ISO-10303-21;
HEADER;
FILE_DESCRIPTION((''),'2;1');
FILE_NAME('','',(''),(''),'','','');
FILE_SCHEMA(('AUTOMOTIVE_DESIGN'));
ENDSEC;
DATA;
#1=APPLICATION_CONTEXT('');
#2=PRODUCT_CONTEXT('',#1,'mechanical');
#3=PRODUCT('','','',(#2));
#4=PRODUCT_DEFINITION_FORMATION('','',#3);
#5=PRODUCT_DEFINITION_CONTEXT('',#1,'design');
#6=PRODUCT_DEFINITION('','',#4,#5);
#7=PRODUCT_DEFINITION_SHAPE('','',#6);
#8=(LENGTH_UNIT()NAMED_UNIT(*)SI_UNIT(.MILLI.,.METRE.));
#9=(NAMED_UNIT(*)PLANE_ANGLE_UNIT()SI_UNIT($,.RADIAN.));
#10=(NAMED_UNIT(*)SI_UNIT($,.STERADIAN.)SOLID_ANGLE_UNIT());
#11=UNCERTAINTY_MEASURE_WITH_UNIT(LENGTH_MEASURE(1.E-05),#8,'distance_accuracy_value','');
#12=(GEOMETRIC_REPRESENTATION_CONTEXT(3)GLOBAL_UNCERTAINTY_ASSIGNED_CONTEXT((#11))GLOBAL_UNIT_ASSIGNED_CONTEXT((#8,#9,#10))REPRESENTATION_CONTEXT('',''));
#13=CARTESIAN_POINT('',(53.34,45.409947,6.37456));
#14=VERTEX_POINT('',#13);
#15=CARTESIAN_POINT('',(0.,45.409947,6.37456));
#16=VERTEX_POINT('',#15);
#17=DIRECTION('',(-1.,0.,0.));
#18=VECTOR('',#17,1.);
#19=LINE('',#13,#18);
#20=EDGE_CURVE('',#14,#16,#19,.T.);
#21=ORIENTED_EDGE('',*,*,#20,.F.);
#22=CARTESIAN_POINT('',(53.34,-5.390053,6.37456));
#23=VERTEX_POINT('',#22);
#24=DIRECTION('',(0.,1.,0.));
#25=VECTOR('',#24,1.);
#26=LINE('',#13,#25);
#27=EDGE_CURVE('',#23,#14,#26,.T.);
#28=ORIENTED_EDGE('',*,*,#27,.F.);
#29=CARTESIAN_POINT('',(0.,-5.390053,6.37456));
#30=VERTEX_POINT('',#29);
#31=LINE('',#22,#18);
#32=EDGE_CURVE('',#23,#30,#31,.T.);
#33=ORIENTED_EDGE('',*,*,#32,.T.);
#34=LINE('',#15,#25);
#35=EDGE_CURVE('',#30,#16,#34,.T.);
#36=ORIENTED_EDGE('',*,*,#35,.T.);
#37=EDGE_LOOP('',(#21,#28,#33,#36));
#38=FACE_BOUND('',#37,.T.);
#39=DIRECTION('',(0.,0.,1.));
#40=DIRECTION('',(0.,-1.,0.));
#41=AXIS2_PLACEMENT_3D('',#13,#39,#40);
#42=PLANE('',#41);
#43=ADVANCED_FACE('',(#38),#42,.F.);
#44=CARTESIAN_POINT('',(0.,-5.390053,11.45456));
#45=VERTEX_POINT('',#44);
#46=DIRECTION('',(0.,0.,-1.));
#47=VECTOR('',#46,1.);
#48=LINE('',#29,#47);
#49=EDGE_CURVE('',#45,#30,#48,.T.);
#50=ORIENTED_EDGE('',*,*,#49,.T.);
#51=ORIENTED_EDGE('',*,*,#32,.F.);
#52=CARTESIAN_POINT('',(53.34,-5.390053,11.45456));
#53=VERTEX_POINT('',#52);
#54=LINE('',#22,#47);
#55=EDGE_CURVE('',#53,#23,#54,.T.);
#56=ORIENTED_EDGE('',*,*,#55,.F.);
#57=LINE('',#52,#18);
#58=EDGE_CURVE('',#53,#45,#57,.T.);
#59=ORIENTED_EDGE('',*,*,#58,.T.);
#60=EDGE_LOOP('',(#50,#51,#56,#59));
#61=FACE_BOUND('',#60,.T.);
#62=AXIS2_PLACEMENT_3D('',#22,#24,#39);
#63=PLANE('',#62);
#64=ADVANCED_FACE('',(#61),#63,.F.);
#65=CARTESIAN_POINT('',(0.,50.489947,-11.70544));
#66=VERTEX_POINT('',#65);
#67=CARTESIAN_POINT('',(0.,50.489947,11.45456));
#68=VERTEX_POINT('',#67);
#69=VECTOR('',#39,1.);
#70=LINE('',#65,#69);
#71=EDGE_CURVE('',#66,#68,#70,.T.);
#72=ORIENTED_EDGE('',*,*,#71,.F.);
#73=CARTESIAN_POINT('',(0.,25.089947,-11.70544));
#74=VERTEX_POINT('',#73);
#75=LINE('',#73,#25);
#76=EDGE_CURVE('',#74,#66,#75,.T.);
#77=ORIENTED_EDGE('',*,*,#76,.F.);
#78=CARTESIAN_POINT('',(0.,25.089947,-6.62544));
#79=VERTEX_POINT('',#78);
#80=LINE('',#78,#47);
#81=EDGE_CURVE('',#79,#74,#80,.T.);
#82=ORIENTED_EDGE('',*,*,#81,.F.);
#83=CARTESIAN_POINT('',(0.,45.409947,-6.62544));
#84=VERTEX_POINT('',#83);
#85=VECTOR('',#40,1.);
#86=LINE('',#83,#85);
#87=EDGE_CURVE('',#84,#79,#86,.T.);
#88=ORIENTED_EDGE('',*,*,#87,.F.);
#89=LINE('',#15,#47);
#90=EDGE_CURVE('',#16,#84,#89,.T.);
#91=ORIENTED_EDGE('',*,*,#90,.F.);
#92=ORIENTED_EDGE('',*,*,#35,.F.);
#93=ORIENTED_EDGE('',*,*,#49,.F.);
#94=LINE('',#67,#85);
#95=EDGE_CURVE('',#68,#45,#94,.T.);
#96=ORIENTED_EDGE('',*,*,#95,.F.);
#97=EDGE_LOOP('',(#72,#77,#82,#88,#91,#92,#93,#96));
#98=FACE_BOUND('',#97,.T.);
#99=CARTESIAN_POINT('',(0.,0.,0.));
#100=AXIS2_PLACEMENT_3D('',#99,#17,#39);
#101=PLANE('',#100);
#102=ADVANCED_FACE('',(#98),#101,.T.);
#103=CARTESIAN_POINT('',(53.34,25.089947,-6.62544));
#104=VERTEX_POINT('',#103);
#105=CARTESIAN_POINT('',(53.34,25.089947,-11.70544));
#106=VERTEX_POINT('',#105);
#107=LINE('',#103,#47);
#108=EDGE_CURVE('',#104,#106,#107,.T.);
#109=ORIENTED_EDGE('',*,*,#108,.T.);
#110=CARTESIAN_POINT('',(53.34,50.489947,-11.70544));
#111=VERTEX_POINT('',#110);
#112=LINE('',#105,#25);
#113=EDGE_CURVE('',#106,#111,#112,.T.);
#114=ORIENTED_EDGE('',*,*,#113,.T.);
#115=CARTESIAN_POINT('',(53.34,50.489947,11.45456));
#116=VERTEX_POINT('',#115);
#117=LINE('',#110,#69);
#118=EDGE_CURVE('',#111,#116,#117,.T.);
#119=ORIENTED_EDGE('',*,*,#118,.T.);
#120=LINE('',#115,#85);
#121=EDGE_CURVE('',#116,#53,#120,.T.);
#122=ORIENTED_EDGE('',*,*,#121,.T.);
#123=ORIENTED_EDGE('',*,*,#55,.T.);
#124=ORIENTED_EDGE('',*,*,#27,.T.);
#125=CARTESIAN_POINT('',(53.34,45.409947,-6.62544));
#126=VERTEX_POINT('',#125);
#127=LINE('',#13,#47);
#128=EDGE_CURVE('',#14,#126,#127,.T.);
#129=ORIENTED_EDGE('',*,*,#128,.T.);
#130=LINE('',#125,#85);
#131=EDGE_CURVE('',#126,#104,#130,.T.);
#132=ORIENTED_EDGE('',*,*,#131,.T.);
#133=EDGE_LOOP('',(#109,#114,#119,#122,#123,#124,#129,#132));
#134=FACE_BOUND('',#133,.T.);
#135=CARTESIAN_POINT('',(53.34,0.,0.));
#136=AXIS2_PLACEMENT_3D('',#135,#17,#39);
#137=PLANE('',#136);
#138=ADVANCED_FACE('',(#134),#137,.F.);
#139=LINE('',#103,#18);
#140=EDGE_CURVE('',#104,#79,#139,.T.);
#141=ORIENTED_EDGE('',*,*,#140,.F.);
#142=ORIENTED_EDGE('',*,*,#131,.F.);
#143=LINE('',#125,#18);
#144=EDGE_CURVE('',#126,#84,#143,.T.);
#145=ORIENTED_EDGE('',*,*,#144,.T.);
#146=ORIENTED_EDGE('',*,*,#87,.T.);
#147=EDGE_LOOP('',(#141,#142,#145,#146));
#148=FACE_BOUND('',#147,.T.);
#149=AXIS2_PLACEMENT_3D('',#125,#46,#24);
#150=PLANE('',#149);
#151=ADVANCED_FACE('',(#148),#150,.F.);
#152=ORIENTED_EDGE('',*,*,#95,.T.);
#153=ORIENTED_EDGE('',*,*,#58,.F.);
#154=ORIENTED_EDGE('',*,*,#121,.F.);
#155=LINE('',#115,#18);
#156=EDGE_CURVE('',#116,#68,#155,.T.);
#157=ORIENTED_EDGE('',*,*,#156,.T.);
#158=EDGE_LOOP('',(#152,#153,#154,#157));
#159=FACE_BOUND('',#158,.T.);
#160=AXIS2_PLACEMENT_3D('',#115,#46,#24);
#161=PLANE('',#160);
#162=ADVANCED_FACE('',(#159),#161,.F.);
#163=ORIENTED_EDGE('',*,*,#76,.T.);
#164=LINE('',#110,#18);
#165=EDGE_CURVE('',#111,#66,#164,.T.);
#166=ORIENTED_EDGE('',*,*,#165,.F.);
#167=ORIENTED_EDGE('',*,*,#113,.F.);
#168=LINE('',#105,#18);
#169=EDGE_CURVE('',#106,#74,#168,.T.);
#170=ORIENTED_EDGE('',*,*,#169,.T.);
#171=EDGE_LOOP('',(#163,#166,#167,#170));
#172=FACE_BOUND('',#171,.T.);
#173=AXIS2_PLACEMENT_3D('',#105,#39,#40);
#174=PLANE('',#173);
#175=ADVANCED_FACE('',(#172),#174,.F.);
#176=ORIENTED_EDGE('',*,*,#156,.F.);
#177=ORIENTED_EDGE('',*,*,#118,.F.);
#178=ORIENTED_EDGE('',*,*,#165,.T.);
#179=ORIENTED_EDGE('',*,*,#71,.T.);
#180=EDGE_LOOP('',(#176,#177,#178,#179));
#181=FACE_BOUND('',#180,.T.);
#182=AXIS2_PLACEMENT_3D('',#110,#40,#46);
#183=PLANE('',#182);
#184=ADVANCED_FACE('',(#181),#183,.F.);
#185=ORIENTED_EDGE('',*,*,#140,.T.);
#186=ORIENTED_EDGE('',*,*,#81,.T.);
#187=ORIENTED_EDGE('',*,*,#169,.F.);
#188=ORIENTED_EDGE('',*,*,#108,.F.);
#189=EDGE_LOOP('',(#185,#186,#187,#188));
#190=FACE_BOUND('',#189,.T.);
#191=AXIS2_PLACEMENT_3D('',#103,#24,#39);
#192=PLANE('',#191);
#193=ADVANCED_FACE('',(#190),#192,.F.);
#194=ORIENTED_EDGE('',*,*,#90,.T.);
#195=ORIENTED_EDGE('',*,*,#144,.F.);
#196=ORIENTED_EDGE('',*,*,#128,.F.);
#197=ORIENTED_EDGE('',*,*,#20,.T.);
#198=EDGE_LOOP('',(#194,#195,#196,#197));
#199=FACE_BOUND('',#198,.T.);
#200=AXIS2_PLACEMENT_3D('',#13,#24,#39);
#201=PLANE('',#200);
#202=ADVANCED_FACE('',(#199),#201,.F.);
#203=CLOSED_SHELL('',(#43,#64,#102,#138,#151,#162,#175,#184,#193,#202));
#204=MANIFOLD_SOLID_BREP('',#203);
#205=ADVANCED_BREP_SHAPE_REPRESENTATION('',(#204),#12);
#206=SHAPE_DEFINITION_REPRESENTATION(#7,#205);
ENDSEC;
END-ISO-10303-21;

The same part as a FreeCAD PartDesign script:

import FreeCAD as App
import Part
import Sketcher
from FreeCAD import Vector
Q = App.Units.Quantity


def add_polygon(sketch, points):
    """Adds a closed chain of lines whose ends are joined by coincident constraints."""
    first, n = sketch.GeometryCount, len(points)
    for a, b in zip(points, points[1:] + points[:1]):
        sketch.addGeometry(Part.LineSegment(App.Vector(*a, 0), App.Vector(*b, 0)), False)
    for i in range(n):
        sketch.addConstraint(Sketcher.Constraint("Coincident", first + i, 2, first + (i + 1) % n, 1))

doc = App.newDocument("Part")
body = doc.addObject("PartDesign::Body", "Body")

sketch1 = body.newObject("Sketcher::SketchObject", "Sketch")
sketch1.AttachmentSupport = (doc.getObject("YZ_Plane"), [""])
sketch1.MapMode = "FlatFace"
add_polygon(sketch1, [(45, -7), (25, -7), (25, -12), (50, -12), (50, 11), (-5, 11), (-5, 6), (45, 6)])
sketch1.addConstraint([
    Sketcher.Constraint("Horizontal", 0),
    Sketcher.Constraint("Vertical", 1),
    Sketcher.Constraint("Horizontal", 2),
    Sketcher.Constraint("Vertical", 3),
    Sketcher.Constraint("Horizontal", 4),
    Sketcher.Constraint("Vertical", 5),
    Sketcher.Constraint("Horizontal", 6),
    Sketcher.Constraint("Vertical", 7),
    Sketcher.Constraint("Equal", 1, 5),
    Sketcher.Constraint("DistanceX", 2, 1, 2, 2, Q("1 in")),
    Sketcher.Constraint("DistanceX", 6, 1, 6, 2, Q("2 in")),
    Sketcher.Constraint("DistanceX", 0, 2, 0, 1, Q("0.8 in")),
    Sketcher.Constraint("DistanceY", 1, 2, 1, 1, Q("0.2 in")),
    Sketcher.Constraint("DistanceY", 3, 1, 3, 2, 23.16),
    Sketcher.Constraint("DistanceY", 0, 2, -1, 1, 6.62544),
    Sketcher.Constraint("DistanceX", -1, 1, 0, 2, 25.089947),
])
pad1 = body.newObject("PartDesign::Pad", "Pad")
pad1.Profile = sketch1
pad1.Length = Q("2.1 in")

doc.recompute()
